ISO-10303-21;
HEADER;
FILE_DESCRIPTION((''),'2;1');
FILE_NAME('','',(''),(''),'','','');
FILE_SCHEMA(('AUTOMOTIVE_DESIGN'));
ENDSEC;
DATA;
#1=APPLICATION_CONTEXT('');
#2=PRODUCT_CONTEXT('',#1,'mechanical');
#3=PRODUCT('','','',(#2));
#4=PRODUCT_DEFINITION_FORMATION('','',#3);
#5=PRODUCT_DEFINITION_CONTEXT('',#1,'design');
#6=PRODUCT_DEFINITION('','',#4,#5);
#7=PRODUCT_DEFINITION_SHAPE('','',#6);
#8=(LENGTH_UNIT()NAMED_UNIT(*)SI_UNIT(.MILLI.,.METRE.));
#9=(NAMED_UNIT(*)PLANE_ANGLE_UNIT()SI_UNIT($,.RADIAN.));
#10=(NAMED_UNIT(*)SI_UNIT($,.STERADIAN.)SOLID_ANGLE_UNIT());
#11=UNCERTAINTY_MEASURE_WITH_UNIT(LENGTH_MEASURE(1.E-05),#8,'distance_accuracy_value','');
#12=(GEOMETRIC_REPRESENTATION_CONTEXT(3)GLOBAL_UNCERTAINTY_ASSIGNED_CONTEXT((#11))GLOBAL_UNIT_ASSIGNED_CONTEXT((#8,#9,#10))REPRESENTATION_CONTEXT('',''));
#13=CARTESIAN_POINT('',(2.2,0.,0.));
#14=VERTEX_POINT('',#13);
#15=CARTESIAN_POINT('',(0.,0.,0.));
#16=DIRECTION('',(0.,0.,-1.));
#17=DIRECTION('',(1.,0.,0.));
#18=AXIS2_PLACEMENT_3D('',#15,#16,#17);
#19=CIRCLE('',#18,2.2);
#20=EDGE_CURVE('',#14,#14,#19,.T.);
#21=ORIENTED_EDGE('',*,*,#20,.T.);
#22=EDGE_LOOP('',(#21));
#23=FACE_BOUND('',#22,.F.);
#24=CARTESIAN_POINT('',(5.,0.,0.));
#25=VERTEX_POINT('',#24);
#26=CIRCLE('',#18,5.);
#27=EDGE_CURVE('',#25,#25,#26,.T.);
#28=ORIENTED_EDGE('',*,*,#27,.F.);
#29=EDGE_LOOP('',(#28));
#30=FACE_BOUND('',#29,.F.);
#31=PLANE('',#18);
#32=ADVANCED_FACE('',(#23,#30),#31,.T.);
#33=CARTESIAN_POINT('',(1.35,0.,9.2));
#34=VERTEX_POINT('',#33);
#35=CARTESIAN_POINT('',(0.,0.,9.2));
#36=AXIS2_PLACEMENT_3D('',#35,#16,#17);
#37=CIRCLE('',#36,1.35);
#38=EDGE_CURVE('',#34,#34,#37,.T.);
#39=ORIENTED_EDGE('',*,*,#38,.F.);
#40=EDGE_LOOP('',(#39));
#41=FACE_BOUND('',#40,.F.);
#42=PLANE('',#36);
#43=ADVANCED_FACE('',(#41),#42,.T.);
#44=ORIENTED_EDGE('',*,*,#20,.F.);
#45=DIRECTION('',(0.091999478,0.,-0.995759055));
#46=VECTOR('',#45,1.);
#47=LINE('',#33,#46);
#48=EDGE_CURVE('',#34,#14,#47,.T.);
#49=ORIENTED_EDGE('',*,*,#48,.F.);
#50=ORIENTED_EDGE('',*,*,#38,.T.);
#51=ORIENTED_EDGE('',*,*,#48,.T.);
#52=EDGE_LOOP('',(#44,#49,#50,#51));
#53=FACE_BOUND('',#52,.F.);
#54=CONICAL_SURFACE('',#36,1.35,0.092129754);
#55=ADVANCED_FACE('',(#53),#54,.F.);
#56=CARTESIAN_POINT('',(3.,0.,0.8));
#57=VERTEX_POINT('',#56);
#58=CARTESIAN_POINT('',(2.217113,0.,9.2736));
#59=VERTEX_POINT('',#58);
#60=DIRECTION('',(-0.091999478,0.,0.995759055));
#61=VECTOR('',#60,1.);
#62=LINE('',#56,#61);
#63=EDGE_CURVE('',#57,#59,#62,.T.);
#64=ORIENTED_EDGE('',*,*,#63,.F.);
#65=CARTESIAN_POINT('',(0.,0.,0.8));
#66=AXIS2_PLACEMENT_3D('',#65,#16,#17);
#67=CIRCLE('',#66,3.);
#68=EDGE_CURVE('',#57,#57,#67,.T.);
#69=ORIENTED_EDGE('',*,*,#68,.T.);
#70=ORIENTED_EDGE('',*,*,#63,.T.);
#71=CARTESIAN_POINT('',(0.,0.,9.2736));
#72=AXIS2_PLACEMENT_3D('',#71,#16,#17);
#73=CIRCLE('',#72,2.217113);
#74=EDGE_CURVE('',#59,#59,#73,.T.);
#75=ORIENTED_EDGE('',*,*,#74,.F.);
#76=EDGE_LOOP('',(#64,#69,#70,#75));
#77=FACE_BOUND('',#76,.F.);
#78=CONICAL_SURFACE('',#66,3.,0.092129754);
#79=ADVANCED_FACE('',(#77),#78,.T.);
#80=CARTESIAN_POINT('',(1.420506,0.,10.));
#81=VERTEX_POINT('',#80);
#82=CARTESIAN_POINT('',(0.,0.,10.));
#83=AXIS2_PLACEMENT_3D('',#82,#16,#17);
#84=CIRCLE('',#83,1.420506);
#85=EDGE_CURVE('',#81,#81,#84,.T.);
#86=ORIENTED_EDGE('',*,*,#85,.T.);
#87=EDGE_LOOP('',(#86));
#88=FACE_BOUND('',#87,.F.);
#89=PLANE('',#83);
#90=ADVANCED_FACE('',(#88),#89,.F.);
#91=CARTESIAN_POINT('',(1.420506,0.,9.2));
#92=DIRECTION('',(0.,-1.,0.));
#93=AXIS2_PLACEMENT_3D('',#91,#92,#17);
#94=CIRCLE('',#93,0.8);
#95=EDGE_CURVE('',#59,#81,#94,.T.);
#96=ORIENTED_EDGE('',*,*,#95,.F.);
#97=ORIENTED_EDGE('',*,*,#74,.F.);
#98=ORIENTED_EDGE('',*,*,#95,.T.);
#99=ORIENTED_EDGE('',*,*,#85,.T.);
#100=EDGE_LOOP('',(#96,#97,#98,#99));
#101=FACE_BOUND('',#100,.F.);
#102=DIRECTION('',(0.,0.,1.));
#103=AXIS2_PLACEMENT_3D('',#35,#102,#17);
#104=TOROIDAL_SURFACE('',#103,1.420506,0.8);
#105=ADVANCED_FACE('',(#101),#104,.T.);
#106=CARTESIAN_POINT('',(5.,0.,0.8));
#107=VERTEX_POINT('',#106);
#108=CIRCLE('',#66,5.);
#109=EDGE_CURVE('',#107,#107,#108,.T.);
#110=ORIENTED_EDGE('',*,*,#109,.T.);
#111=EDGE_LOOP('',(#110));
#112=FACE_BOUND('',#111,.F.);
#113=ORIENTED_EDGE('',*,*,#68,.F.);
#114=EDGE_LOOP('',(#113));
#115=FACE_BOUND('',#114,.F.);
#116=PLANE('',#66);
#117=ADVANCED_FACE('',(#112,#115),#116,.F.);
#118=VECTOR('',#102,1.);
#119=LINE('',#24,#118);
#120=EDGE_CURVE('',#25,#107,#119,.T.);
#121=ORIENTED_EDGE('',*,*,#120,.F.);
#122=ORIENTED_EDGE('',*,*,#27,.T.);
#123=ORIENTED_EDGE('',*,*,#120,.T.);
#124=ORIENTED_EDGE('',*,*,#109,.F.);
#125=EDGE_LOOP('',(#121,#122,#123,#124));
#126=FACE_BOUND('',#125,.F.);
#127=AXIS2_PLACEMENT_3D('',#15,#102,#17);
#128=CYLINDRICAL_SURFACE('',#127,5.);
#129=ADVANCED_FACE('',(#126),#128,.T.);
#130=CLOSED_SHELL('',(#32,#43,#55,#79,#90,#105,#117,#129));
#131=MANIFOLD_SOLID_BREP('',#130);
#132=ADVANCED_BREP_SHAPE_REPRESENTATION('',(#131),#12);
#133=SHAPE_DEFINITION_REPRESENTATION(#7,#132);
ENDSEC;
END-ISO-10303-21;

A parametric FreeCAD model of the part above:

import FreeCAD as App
import Part
import Sketcher
Q = App.Units.Quantity


def edges_at(feature, points):
    """Names of the edges that pass closest to the given points."""
    edges = feature.Shape.Edges
    near = lambda p: min(range(len(edges)), key=lambda i: edges[i].distToShape(Part.Vertex(*p))[0])
    return sorted({f"Edge{near(p) + 1}" for p in points})


def add_polygon(sketch, points):
    """Adds a closed chain of lines whose ends are joined by coincident constraints."""
    first, n = sketch.GeometryCount, len(points)
    for a, b in zip(points, points[1:] + points[:1]):
        sketch.addGeometry(Part.LineSegment(App.Vector(*a, 0), App.Vector(*b, 0)), False)
    for i in range(n):
        sketch.addConstraint(Sketcher.Constraint("Coincident", first + i, 2, first + (i + 1) % n, 1))

doc = App.newDocument("Part")
body = doc.addObject("PartDesign::Body", "Body")

sketch1 = body.newObject("Sketcher::SketchObject", "Sketch")
sketch1.AttachmentSupport = (doc.getObject("XZ_Plane"), [""])
sketch1.MapMode = "FlatFace"
add_polygon(sketch1, [(2.2, 0), (5, 0), (5, 0.8), (3, 0.8), (2.1, 10), (0, 10), (0, 9.2), (1.4, 9.2)])
sketch1.addConstraint(Sketcher.Constraint("Horizontal", 0))
sketch1.addConstraint(Sketcher.Constraint("Vertical", 1))
sketch1.addConstraint(Sketcher.Constraint("Horizontal", 2))
sketch1.addConstraint(Sketcher.Constraint("Horizontal", 4))
sketch1.addConstraint(Sketcher.Constraint("Vertical", 5))
sketch1.addConstraint(Sketcher.Constraint("Horizontal", 6))
sketch1.addConstraint(Sketcher.Constraint("PointOnObject", 0, 2, -1))
sketch1.addConstraint(Sketcher.Constraint("PointOnObject", 4, 2, -2))
sketch1.addConstraint(Sketcher.Constraint("Parallel", 3, 7))
sketch1.addConstraint(Sketcher.Constraint("Equal", 1, 5))
sketch1.addConstraint(Sketcher.Constraint("DistanceX", 2, 2, 2, 1, Q("2 mm")))
sketch1.addConstraint(Sketcher.Constraint("DistanceX", 0, 1, 0, 2, Q("2.8 mm")))
sketch1.addConstraint(Sketcher.Constraint("DistanceY", 1, 1, 1, 2, Q("0.8 mm")))
sketch1.addConstraint(Sketcher.Constraint("DistanceX", -1, 1, 0, 2, Q("5 mm")))
sketch1.addConstraint(Sketcher.Constraint("DistanceY", -1, 1, 3, 2, Q("10 mm")))
sketch1.addConstraint(Sketcher.Constraint("DistanceX", 4, 2, 4, 1, Q("2.15 mm")))
revolution = body.newObject("PartDesign::Revolution", "Revolution")
revolution.Profile = sketch1
revolution.ReferenceAxis = (sketch1, ["V_Axis"])
revolution.Angle = 360
doc.recompute()

fillet = body.newObject("PartDesign::Fillet", "Fillet")
fillet.Base = (revolution, edges_at(revolution, [(-2.15, 0, 10)]))
fillet.Radius = 0.8

doc.recompute()
